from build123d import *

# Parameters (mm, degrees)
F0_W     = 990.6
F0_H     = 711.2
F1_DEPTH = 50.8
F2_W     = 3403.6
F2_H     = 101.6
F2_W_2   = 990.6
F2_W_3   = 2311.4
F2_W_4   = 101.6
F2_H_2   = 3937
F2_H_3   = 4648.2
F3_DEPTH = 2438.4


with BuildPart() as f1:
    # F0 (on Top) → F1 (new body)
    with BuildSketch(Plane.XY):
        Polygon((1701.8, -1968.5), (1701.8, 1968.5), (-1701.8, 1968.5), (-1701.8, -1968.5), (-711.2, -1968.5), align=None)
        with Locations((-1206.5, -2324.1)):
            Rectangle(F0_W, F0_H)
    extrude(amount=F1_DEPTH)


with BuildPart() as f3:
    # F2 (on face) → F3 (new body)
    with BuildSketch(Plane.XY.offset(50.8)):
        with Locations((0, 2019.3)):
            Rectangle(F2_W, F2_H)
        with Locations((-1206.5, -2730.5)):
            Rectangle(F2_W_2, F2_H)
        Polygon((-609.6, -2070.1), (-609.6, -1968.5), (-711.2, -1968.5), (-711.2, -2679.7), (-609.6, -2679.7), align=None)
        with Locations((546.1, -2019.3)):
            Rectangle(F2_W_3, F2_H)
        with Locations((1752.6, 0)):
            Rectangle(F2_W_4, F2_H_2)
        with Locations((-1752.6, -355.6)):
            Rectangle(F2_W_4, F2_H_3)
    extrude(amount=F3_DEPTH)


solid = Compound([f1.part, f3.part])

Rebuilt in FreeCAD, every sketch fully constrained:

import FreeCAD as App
import Part
import Sketcher

V = App.Vector
Q = App.Units.Quantity

doc = App.newDocument("Part")
params = doc.addObject("Spreadsheet::Sheet", "Params")
for row, (alias, value) in enumerate([
    ("sketch1_width", "134 in"),
    ("sketch1_width2", "39 in"),
    ("sketch1_height", "155 in"),
    ("sketch1_height2", "183 in"),
    ("pad1_length", "2 in"),
    ("sketch2_width", "134 in"),
    ("sketch2_width2", "39 in"),
    ("sketch2_width3", "4 in"),
    ("sketch2_height", "28 in"),
    ("sketch2_height2", "155 in"),
    ("pad2_length", "96 in"),
], start=1):
    params.set(f"A{row}", alias)
    params.set(f"B{row}", "=" + value)
    params.setAlias(f"B{row}", alias)

body = doc.addObject("PartDesign::Body", "Body")

# Sketch on XY plane
sketch1 = doc.addObject("Sketcher::SketchObject", "Sketch")
body.addObject(sketch1)
sketch1.AttachmentSupport = (doc.XY_Plane, [""])
sketch1.MapMode = "FlatFace"
sketch1.addGeometry(Part.LineSegment(V(1701.8, -1968.5, 0), V(1701.8, 1968.5, 0)), False)
sketch1.addGeometry(Part.LineSegment(V(1701.8, 1968.5, 0), V(-1701.8, 1968.5, 0)), False)
sketch1.addGeometry(Part.LineSegment(V(-1701.8, 1968.5, 0), V(-1701.8, -2679.7, 0)), False)
sketch1.addGeometry(Part.LineSegment(V(-1701.8, -2679.7, 0), V(-711.2, -2679.7, 0)), False)
sketch1.addGeometry(Part.LineSegment(V(-711.2, -2679.7, 0), V(-711.2, -1968.5, 0)), False)
sketch1.addGeometry(Part.LineSegment(V(-711.2, -1968.5, 0), V(1701.8, -1968.5, 0)), False)
sketch1.addConstraint(Sketcher.Constraint("Coincident", 0, 2, 1, 1))
sketch1.addConstraint(Sketcher.Constraint("Coincident", 1, 2, 2, 1))
sketch1.addConstraint(Sketcher.Constraint("Coincident", 2, 2, 3, 1))
sketch1.addConstraint(Sketcher.Constraint("Coincident", 3, 2, 4, 1))
sketch1.addConstraint(Sketcher.Constraint("Coincident", 4, 2, 5, 1))
sketch1.addConstraint(Sketcher.Constraint("Coincident", 5, 2, 0, 1))
sketch1.addConstraint(Sketcher.Constraint("Vertical", 0))
sketch1.addConstraint(Sketcher.Constraint("Horizontal", 1))
sketch1.addConstraint(Sketcher.Constraint("Vertical", 2))
sketch1.addConstraint(Sketcher.Constraint("Horizontal", 3))
sketch1.addConstraint(Sketcher.Constraint("Vertical", 4))
sketch1.addConstraint(Sketcher.Constraint("Horizontal", 5))
sketch1.addConstraint(Sketcher.Constraint("Symmetric", 1, 2, 5, 2, -1, 1))
sketch1.addConstraint(Sketcher.Constraint("DistanceX", 1, 2, 1, 1, Q("134 in")))
sketch1.addConstraint(Sketcher.Constraint("DistanceX", 3, 1, 3, 2, Q("39 in")))
sketch1.addConstraint(Sketcher.Constraint("DistanceY", 0, 1, 0, 2, Q("155 in")))
sketch1.addConstraint(Sketcher.Constraint("DistanceY", 2, 2, 2, 1, Q("183 in")))
sketch1.setExpression("Constraints[13]", "Params.sketch1_width")
sketch1.setExpression("Constraints[14]", "Params.sketch1_width2")
sketch1.setExpression("Constraints[15]", "Params.sketch1_height")
sketch1.setExpression("Constraints[16]", "Params.sketch1_height2")
pad1 = doc.addObject("PartDesign::Pad", "Pad")
body.addObject(pad1)
pad1.Profile = sketch1
pad1.setExpression("Length", "Params.pad1_length")
body2 = doc.addObject("PartDesign::Body", "Body001")
body2.AllowCompound = True

# Sketch on XY plane
sketch2 = doc.addObject("Sketcher::SketchObject", "Sketch001")
body2.addObject(sketch2)
sketch2.AttachmentSupport = (doc.getObject("XY_Plane001"), [""])
sketch2.MapMode = "FlatFace"
sketch2.AttachmentOffset = App.Placement(V(0, 0, 2 * 25.4), App.Rotation())
sketch2.addGeometry(Part.LineSegment(V(-1701.8, 2070.1, 0), V(-1701.8, 1968.5, 0)), False)
sketch2.addGeometry(Part.LineSegment(V(-1701.8, 1968.5, 0), V(1701.8, 1968.5, 0)), False)
sketch2.addGeometry(Part.LineSegment(V(1701.8, 1968.5, 0), V(1701.8, 2070.1, 0)), False)
sketch2.addGeometry(Part.LineSegment(V(1701.8, 2070.1, 0), V(-1701.8, 2070.1, 0)), False)
sketch2.addGeometry(Part.LineSegment(V(-1701.8, -2679.7, 0), V(-1701.8, -2781.3, 0)), False)
sketch2.addGeometry(Part.LineSegment(V(-1701.8, -2781.3, 0), V(-711.2, -2781.3, 0)), False)
sketch2.addGeometry(Part.LineSegment(V(-711.2, -2781.3, 0), V(-711.2, -2679.7, 0)), False)
sketch2.addGeometry(Part.LineSegment(V(-711.2, -2679.7, 0), V(-1701.8, -2679.7, 0)), False)
sketch2.addGeometry(Part.LineSegment(V(-711.2, -1968.5, 0), V(-711.2, -2679.7, 0)), False)
sketch2.addGeometry(Part.LineSegment(V(-711.2, -2679.7, 0), V(-609.6, -2679.7, 0)), False)
sketch2.addGeometry(Part.LineSegment(V(-609.6, -2679.7, 0), V(-609.6, -2070.1, 0)), False)
sketch2.addGeometry(Part.LineSegment(V(-609.6, -2070.1, 0), V(1701.8, -2070.1, 0)), False)
sketch2.addGeometry(Part.LineSegment(V(1701.8, -2070.1, 0), V(1701.8, -1968.5, 0)), False)
sketch2.addGeometry(Part.LineSegment(V(1701.8, -1968.5, 0), V(-711.2, -1968.5, 0)), False)
sketch2.addGeometry(Part.LineSegment(V(1701.8, 1968.5, 0), V(1701.8, -1968.5, 0)), False)
sketch2.addGeometry(Part.LineSegment(V(1701.8, -1968.5, 0), V(1803.4, -1968.5, 0)), False)
sketch2.addGeometry(Part.LineSegment(V(1803.4, -1968.5, 0), V(1803.4, 1968.5, 0)), False)
sketch2.addGeometry(Part.LineSegment(V(1803.4, 1968.5, 0), V(1701.8, 1968.5, 0)), False)
sketch2.addGeometry(Part.LineSegment(V(-1803.4, 1968.5, 0), V(-1803.4, -2679.7, 0)), False)
sketch2.addGeometry(Part.LineSegment(V(-1803.4, -2679.7, 0), V(-1701.8, -2679.7, 0)), False)
sketch2.addGeometry(Part.LineSegment(V(-1701.8, -2679.7, 0), V(-1701.8, 1968.5, 0)), False)
sketch2.addGeometry(Part.LineSegment(V(-1701.8, 1968.5, 0), V(-1803.4, 1968.5, 0)), False)
sketch2.addConstraint(Sketcher.Constraint("Coincident", 0, 2, 1, 1))
sketch2.addConstraint(Sketcher.Constraint("Coincident", 1, 2, 2, 1))
sketch2.addConstraint(Sketcher.Constraint("Coincident", 2, 2, 3, 1))
sketch2.addConstraint(Sketcher.Constraint("Coincident", 3, 2, 0, 1))
sketch2.addConstraint(Sketcher.Constraint("Coincident", 4, 2, 5, 1))
sketch2.addConstraint(Sketcher.Constraint("Coincident", 5, 2, 6, 1))
sketch2.addConstraint(Sketcher.Constraint("Coincident", 6, 2, 7, 1))
sketch2.addConstraint(Sketcher.Constraint("Coincident", 7, 2, 4, 1))
sketch2.addConstraint(Sketcher.Constraint("Coincident", 8, 2, 9, 1))
sketch2.addConstraint(Sketcher.Constraint("Coincident", 9, 2, 10, 1))
sketch2.addConstraint(Sketcher.Constraint("Coincident", 10, 2, 11, 1))
sketch2.addConstraint(Sketcher.Constraint("Coincident", 11, 2, 12, 1))
sketch2.addConstraint(Sketcher.Constraint("Coincident", 12, 2, 13, 1))
sketch2.addConstraint(Sketcher.Constraint("Coincident", 13, 2, 8, 1))
sketch2.addConstraint(Sketcher.Constraint("Coincident", 14, 2, 15, 1))
sketch2.addConstraint(Sketcher.Constraint("Coincident", 15, 2, 16, 1))
sketch2.addConstraint(Sketcher.Constraint("Coincident", 16, 2, 17, 1))
sketch2.addConstraint(Sketcher.Constraint("Coincident", 17, 2, 14, 1))
sketch2.addConstraint(Sketcher.Constraint("Coincident", 18, 2, 19, 1))
sketch2.addConstraint(Sketcher.Constraint("Coincident", 19, 2, 20, 1))
sketch2.addConstraint(Sketcher.Constraint("Coincident", 20, 2, 21, 1))
sketch2.addConstraint(Sketcher.Constraint("Coincident", 21, 2, 18, 1))
sketch2.addConstraint(Sketcher.Constraint("Vertical", 0))
sketch2.addConstraint(Sketcher.Constraint("Horizontal", 1))
sketch2.addConstraint(Sketcher.Constraint("Vertical", 2))
sketch2.addConstraint(Sketcher.Constraint("Horizontal", 3))
sketch2.addConstraint(Sketcher.Constraint("Vertical", 4))
sketch2.addConstraint(Sketcher.Constraint("Horizontal", 5))
sketch2.addConstraint(Sketcher.Constraint("Vertical", 6))
sketch2.addConstraint(Sketcher.Constraint("Horizontal", 7))
sketch2.addConstraint(Sketcher.Constraint("Vertical", 8))
sketch2.addConstraint(Sketcher.Constraint("Horizontal", 9))
sketch2.addConstraint(Sketcher.Constraint("Vertical", 10))
sketch2.addConstraint(Sketcher.Constraint("Horizontal", 11))
sketch2.addConstraint(Sketcher.Constraint("Vertical", 12))
sketch2.addConstraint(Sketcher.Constraint("Horizontal", 13))
sketch2.addConstraint(Sketcher.Constraint("Vertical", 14))
sketch2.addConstraint(Sketcher.Constraint("Horizontal", 15))
sketch2.addConstraint(Sketcher.Constraint("Vertical", 16))
sketch2.addConstraint(Sketcher.Constraint("Horizontal", 17))
sketch2.addConstraint(Sketcher.Constraint("Vertical", 18))
sketch2.addConstraint(Sketcher.Constraint("Horizontal", 19))
sketch2.addConstraint(Sketcher.Constraint("Vertical", 20))
sketch2.addConstraint(Sketcher.Constraint("Horizontal", 21))
sketch2.addConstraint(Sketcher.Constraint("Coincident", 8, 2, 6, 2))
sketch2.addConstraint(Sketcher.Constraint("Coincident", 14, 2, 12, 2))
sketch2.addConstraint(Sketcher.Constraint("Coincident", 17, 2, 1, 2))
sketch2.addConstraint(Sketcher.Constraint("Coincident", 19, 2, 7, 2))
sketch2.addConstraint(Sketcher.Constraint("Coincident", 20, 2, 0, 2))
sketch2.addConstraint(Sketcher.Constraint("Symmetric", 3, 2, 11, 2, -1, 1))
sketch2.addConstraint(Sketcher.Constraint("Symmetric", 15, 2, 21, 2, -1, 1))
sketch2.addConstraint(Sketcher.Constraint("Equal", 9, 15))
sketch2.addConstraint(Sketcher.Constraint("Equal", 21, 0))
sketch2.addConstraint(Sketcher.Constraint("Equal", 2, 4))
sketch2.addConstraint(Sketcher.Constraint("DistanceX", 1, 1, 1, 2, Q("134 in")))
sketch2.addConstraint(Sketcher.Constraint("DistanceX", 5, 1, 5, 2, Q("39 in")))
sketch2.addConstraint(Sketcher.Constraint("DistanceX", 9, 1, 9, 2, Q("4 in")))
sketch2.addConstraint(Sketcher.Constraint("DistanceY", 8, 2, 8, 1, Q("28 in")))
sketch2.addConstraint(Sketcher.Constraint("DistanceY", 14, 2, 14, 1, Q("155 in")))
sketch2.setExpression("Constraints[54]", "Params.sketch2_width")
sketch2.setExpression("Constraints[55]", "Params.sketch2_width2")
sketch2.setExpression("Constraints[56]", "Params.sketch2_width3")
sketch2.setExpression("Constraints[57]", "Params.sketch2_height")
sketch2.setExpression("Constraints[58]", "Params.sketch2_height2")
pad2 = doc.addObject("PartDesign::Pad", "Pad001")
body2.addObject(pad2)
pad2.Profile = sketch2
pad2.setExpression("Length", "Params.pad2_length")

doc.recompute()
